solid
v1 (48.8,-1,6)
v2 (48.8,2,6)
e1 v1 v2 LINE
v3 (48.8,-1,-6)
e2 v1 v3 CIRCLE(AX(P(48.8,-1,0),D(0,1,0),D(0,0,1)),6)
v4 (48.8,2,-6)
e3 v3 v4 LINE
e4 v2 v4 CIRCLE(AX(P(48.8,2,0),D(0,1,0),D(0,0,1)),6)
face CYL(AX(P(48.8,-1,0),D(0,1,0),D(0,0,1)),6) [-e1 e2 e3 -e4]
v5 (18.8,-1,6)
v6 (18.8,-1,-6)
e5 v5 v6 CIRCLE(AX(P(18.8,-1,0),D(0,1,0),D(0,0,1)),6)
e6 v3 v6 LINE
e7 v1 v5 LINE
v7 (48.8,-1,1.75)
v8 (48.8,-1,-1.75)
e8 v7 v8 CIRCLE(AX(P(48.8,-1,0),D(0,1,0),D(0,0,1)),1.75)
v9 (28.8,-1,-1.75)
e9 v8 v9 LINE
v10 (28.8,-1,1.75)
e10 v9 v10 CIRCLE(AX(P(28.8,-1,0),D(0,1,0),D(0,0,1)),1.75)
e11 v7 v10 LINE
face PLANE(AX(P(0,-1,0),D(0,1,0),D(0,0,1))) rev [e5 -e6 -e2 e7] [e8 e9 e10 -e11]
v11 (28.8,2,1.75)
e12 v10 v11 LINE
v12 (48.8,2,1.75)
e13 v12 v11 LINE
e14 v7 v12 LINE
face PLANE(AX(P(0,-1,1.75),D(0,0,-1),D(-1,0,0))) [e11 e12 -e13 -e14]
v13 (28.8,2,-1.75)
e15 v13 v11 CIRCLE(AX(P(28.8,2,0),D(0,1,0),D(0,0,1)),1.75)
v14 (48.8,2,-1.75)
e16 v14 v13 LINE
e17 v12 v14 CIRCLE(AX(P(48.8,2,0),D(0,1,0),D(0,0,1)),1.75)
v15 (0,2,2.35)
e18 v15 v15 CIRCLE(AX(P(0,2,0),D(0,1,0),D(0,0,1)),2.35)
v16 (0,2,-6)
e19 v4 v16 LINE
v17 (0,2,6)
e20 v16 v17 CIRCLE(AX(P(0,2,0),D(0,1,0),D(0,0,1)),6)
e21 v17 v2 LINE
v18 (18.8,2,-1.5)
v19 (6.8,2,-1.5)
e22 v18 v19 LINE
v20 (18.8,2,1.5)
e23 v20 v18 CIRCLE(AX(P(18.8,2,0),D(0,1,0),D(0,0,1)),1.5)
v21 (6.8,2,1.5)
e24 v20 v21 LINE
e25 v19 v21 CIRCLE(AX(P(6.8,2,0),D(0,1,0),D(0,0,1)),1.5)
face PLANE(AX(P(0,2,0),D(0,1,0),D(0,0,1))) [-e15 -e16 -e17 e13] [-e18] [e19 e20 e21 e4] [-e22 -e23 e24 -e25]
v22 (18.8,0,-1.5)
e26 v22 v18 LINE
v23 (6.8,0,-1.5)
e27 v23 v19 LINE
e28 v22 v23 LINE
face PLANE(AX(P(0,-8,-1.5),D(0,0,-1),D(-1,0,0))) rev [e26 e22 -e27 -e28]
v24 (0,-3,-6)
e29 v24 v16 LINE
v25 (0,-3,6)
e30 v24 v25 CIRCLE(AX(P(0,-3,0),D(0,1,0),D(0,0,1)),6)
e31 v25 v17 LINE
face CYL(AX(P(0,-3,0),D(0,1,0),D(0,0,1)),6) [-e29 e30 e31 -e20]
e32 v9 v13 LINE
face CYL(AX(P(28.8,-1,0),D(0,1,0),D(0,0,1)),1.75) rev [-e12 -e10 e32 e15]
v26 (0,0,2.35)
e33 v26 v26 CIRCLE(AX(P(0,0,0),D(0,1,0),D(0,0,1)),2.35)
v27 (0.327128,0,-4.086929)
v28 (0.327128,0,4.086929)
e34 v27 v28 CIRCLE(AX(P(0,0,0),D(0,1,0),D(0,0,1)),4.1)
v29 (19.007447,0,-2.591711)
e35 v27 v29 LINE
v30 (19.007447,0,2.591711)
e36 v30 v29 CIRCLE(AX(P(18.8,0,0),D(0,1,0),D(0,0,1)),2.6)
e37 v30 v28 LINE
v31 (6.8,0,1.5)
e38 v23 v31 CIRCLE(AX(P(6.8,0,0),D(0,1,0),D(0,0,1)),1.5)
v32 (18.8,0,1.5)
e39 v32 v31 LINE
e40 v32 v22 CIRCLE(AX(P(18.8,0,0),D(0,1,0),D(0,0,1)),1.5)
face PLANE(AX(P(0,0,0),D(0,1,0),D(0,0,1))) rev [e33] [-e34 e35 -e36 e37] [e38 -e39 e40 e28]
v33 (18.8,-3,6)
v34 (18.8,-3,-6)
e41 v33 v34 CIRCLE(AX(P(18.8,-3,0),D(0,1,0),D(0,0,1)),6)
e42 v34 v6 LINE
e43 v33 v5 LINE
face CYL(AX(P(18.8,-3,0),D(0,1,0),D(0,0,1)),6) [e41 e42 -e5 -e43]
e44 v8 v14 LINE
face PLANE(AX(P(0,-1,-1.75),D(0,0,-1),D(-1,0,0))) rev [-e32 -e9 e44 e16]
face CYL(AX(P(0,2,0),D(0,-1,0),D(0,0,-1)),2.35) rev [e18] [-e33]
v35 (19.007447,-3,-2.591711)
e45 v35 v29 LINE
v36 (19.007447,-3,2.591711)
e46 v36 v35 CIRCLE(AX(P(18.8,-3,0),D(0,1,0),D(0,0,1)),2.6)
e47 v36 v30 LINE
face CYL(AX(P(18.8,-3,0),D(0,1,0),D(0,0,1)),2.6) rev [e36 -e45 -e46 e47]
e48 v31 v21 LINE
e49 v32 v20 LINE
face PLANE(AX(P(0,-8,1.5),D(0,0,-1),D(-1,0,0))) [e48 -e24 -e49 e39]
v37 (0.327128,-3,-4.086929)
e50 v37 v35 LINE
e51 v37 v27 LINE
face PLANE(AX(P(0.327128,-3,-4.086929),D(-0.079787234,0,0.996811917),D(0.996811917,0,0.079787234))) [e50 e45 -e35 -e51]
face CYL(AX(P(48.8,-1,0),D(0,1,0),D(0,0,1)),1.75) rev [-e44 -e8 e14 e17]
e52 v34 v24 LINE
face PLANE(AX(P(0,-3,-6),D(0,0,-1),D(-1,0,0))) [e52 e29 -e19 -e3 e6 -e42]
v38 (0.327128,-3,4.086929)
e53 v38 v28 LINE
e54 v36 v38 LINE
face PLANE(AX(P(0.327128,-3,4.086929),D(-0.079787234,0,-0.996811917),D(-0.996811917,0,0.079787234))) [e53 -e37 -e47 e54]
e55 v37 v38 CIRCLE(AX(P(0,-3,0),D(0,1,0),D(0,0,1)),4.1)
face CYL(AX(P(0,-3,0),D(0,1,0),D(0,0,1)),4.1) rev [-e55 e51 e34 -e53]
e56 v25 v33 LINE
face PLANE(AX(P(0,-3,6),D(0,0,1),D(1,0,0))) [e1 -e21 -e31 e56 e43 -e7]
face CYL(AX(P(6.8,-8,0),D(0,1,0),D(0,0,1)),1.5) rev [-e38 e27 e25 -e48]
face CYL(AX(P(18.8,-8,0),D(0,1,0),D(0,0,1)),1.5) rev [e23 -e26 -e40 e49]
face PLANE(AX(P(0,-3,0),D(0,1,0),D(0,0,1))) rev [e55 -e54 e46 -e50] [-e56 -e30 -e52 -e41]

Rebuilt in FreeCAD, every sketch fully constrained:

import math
import FreeCAD as App
import Part
import Sketcher

V = App.Vector

doc = App.newDocument("Part")
params = doc.addObject("Spreadsheet::Sheet", "Params")
for row, (alias, value) in enumerate([
    ("sketch1_radius", "6 mm"),
    ("sketch1_radius2", "4.1 mm"),
    ("sketch1_radius3", "2.6 mm"),
    ("sketch1_width", "18.8 mm"),
    ("pad1_length", "3 mm"),
    ("sketch2_radius", "6 mm"),
    ("sketch2_diameter", "4.7 mm"),
    ("sketch2_width", "18.8 mm"),
    ("pad2_length", "2 mm"),
    ("sketch3_radius", "6 mm"),
    ("sketch3_width", "30 mm"),
    ("sketch3_width2", "20 mm"),
    ("sketch3_radius2", "1.75 mm"),
    ("pad3_length", "3 mm"),
    ("sketch4_radius", "1.5 mm"),
    ("sketch4_width", "12 mm"),
    ("pocket1_length", "10 mm"),
], start=1):
    params.set(f"A{row}", alias)
    params.set(f"B{row}", "=" + value)
    params.setAlias(f"B{row}", alias)

body = doc.addObject("PartDesign::Body", "Body")

# Sketch on XZ plane
sketch1 = body.newObject("Sketcher::SketchObject", "Sketch")
sketch1.AttachmentSupport = (doc.getObject("XZ_Plane"), [""])
sketch1.MapMode = "FlatFace"
sketch1.addGeometry(Part.ArcOfCircle(Part.Circle(V(18.8, 0, 0), V(0, 0, 1), 6), math.radians(-90), math.radians(90)), False)
sketch1.addGeometry(Part.LineSegment(V(18.8, -6, 0), V(0, -6, 0)), False)
sketch1.addGeometry(Part.ArcOfCircle(Part.Circle(V(0, 0, 0), V(0, 0, 1), 6), math.radians(90), math.radians(270)), False)
sketch1.addGeometry(Part.LineSegment(V(0, 6, 0), V(18.8, 6, 0)), False)
sketch1.addGeometry(Part.LineSegment(V(19, 2.6, 0), V(0.3, 4.1, 0)), False)
sketch1.addGeometry(Part.ArcOfCircle(Part.Circle(V(0, 0, 0), V(0, 0, 1), 4.1), math.radians(85), math.radians(275)), False)
sketch1.addGeometry(Part.LineSegment(V(0.3, -4.1, 0), V(19, -2.6, 0)), False)
sketch1.addGeometry(Part.ArcOfCircle(Part.Circle(V(18.8, 0, 0), V(0, 0, 1), 2.6), math.radians(-85), math.radians(85)), False)
sketch1.addConstraint(Sketcher.Constraint("Tangent", 0, 1, 1, 1))
sketch1.addConstraint(Sketcher.Constraint("Tangent", 1, 2, 2, 2))
sketch1.addConstraint(Sketcher.Constraint("Tangent", 2, 1, 3, 1))
sketch1.addConstraint(Sketcher.Constraint("Tangent", 3, 2, 0, 2))
sketch1.addConstraint(Sketcher.Constraint("Tangent", 4, 2, 5, 1))
sketch1.addConstraint(Sketcher.Constraint("Tangent", 5, 2, 6, 1))
sketch1.addConstraint(Sketcher.Constraint("Tangent", 6, 2, 7, 1))
sketch1.addConstraint(Sketcher.Constraint("Tangent", 7, 2, 4, 1))
sketch1.addConstraint(Sketcher.Constraint("Horizontal", 1))
sketch1.addConstraint(Sketcher.Constraint("Horizontal", 3))
sketch1.addConstraint(Sketcher.Constraint("Coincident", 2, 3, -1, 1))
sketch1.addConstraint(Sketcher.Constraint("Coincident", 5, 3, -1, 1))
sketch1.addConstraint(Sketcher.Constraint("Coincident", 7, 3, 0, 3))
sketch1.addConstraint(Sketcher.Constraint("Radius", 0, 6.0))
sketch1.addConstraint(Sketcher.Constraint("Radius", 5, 4.1))
sketch1.addConstraint(Sketcher.Constraint("Radius", 7, 2.6))
sketch1.addConstraint(Sketcher.Constraint("DistanceX", 1, 2, 1, 1, 18.8))
sketch1.setExpression("Constraints[13]", "Params.sketch1_radius")
sketch1.setExpression("Constraints[14]", "Params.sketch1_radius2")
sketch1.setExpression("Constraints[15]", "Params.sketch1_radius3")
sketch1.setExpression("Constraints[16]", "Params.sketch1_width")
pad1 = body.newObject("PartDesign::Pad", "Pad")
pad1.Profile = sketch1
pad1.setExpression("Length", "Params.pad1_length")

# Sketch on XZ plane
sketch2 = body.newObject("Sketcher::SketchObject", "Sketch001")
sketch2.AttachmentSupport = (doc.getObject("XZ_Plane"), [""])
sketch2.MapMode = "FlatFace"
sketch2.AttachmentOffset = App.Placement(V(0, 0, -2), App.Rotation())
sketch2.addGeometry(Part.ArcOfCircle(Part.Circle(V(18.8, 0, 0), V(0, 0, 1), 6), math.radians(-90), math.radians(90)), False)
sketch2.addGeometry(Part.LineSegment(V(18.8, -6, 0), V(0, -6, 0)), False)
sketch2.addGeometry(Part.ArcOfCircle(Part.Circle(V(0, 0, 0), V(0, 0, 1), 6), math.radians(90), math.radians(270)), False)
sketch2.addGeometry(Part.LineSegment(V(0, 6, 0), V(18.8, 6, 0)), False)
sketch2.addGeometry(Part.Circle(V(0, 0, 0), V(0, 0, 1), 2.4), False)
sketch2.addConstraint(Sketcher.Constraint("Tangent", 0, 1, 1, 1))
sketch2.addConstraint(Sketcher.Constraint("Tangent", 1, 2, 2, 2))
sketch2.addConstraint(Sketcher.Constraint("Tangent", 2, 1, 3, 1))
sketch2.addConstraint(Sketcher.Constraint("Tangent", 3, 2, 0, 2))
sketch2.addConstraint(Sketcher.Constraint("Horizontal", 1))
sketch2.addConstraint(Sketcher.Constraint("Horizontal", 3))
sketch2.addConstraint(Sketcher.Constraint("Coincident", 2, 3, -1, 1))
sketch2.addConstraint(Sketcher.Constraint("Coincident", 4, 3, -1, 1))
sketch2.addConstraint(Sketcher.Constraint("Radius", 0, 6.0))
sketch2.addConstraint(Sketcher.Constraint("Diameter", 4, 4.7))
sketch2.addConstraint(Sketcher.Constraint("DistanceX", 1, 2, 1, 1, 18.8))
sketch2.setExpression("Constraints[8]", "Params.sketch2_radius")
sketch2.setExpression("Constraints[9]", "Params.sketch2_diameter")
sketch2.setExpression("Constraints[10]", "Params.sketch2_width")
pad2 = body.newObject("PartDesign::Pad", "Pad001")
pad2.Profile = sketch2
pad2.setExpression("Length", "Params.pad2_length")

# Sketch on XZ plane
sketch3 = body.newObject("Sketcher::SketchObject", "Sketch002")
sketch3.AttachmentSupport = (doc.getObject("XZ_Plane"), [""])
sketch3.MapMode = "FlatFace"
sketch3.AttachmentOffset = App.Placement(V(0, 0, -2), App.Rotation())
sketch3.addGeometry(Part.ArcOfCircle(Part.Circle(V(48.8, 0, 0), V(0, 0, 1), 6), math.radians(-90), math.radians(90)), False)
sketch3.addGeometry(Part.LineSegment(V(48.8, -6, 0), V(18.8, -6, 0)), False)
sketch3.addGeometry(Part.ArcOfCircle(Part.Circle(V(18.8, 0, 0), V(0, 0, 1), 6), math.radians(-90), math.radians(90)), False)
sketch3.addGeometry(Part.LineSegment(V(18.8, 6, 0), V(48.8, 6, 0)), False)
sketch3.addGeometry(Part.LineSegment(V(28.8, -1.8, 0), V(48.8, -1.8, 0)), False)
sketch3.addGeometry(Part.ArcOfCircle(Part.Circle(V(48.8, 0, 0), V(0, 0, 1), 1.8), math.radians(-90), math.radians(90)), False)
sketch3.addGeometry(Part.LineSegment(V(48.8, 1.8, 0), V(28.8, 1.8, 0)), False)
sketch3.addGeometry(Part.ArcOfCircle(Part.Circle(V(28.8, 0, 0), V(0, 0, 1), 1.8), math.radians(90), math.radians(270)), False)
sketch3.addConstraint(Sketcher.Constraint("Tangent", 0, 1, 1, 1))
sketch3.addConstraint(Sketcher.Constraint("Tangent", 1, 2, 2, 1))
sketch3.addConstraint(Sketcher.Constraint("Tangent", 2, 2, 3, 1))
sketch3.addConstraint(Sketcher.Constraint("Tangent", 3, 2, 0, 2))
sketch3.addConstraint(Sketcher.Constraint("Tangent", 4, 2, 5, 1))
sketch3.addConstraint(Sketcher.Constraint("Tangent", 5, 2, 6, 1))
sketch3.addConstraint(Sketcher.Constraint("Tangent", 6, 2, 7, 1))
sketch3.addConstraint(Sketcher.Constraint("Tangent", 7, 2, 4, 1))
sketch3.addConstraint(Sketcher.Constraint("Horizontal", 1))
sketch3.addConstraint(Sketcher.Constraint("Horizontal", 3))
sketch3.addConstraint(Sketcher.Constraint("Horizontal", 4))
sketch3.addConstraint(Sketcher.Constraint("Horizontal", 6))
sketch3.addConstraint(Sketcher.Constraint("Coincident", 5, 3, 0, 3))
sketch3.addConstraint(Sketcher.Constraint("PointOnObject", 0, 3, -1))
sketch3.addConstraint(Sketcher.Constraint("Radius", 0, 6.0))
sketch3.addConstraint(Sketcher.Constraint("DistanceX", 1, 2, 1, 1, 30.0))
sketch3.addConstraint(Sketcher.Constraint("DistanceX", 4, 1, 4, 2, 20.0))
sketch3.addConstraint(Sketcher.Constraint("Radius", 5, 1.75))
sketch3.addConstraint(Sketcher.Constraint("DistanceX", -1, 1, 0, 3, 48.8))
sketch3.setExpression("Constraints[14]", "Params.sketch3_radius")
sketch3.setExpression("Constraints[15]", "Params.sketch3_width")
sketch3.setExpression("Constraints[16]", "Params.sketch3_width2")
sketch3.setExpression("Constraints[17]", "Params.sketch3_radius2")
pad3 = body.newObject("PartDesign::Pad", "Pad002")
pad3.Profile = sketch3
pad3.setExpression("Length", "Params.pad3_length")

# Sketch on XZ plane
sketch4 = body.newObject("Sketcher::SketchObject", "Sketch003")
sketch4.AttachmentSupport = (doc.getObject("XZ_Plane"), [""])
sketch4.MapMode = "FlatFace"
sketch4.AttachmentOffset = App.Placement(V(0, 0, -2), App.Rotation())
sketch4.addGeometry(Part.ArcOfCircle(Part.Circle(V(18.8, 0, 0), V(0, 0, 1), 1.5), math.radians(-90), math.radians(0)), False)
sketch4.addGeometry(Part.LineSegment(V(18.8, -1.5, 0), V(6.8, -1.5, 0)), False)
sketch4.addGeometry(Part.ArcOfCircle(Part.Circle(V(6.8, 0, 0), V(0, 0, 1), 1.5), math.radians(180), math.radians(270)), False)
sketch4.addGeometry(Part.ArcOfCircle(Part.Circle(V(6.8, 0, 0), V(0, 0, 1), 1.5), math.radians(90), math.radians(180)), False)
sketch4.addGeometry(Part.LineSegment(V(6.8, 1.5, 0), V(18.8, 1.5, 0)), False)
sketch4.addGeometry(Part.ArcOfCircle(Part.Circle(V(18.8, 0, 0), V(0, 0, 1), 1.5), math.radians(0), math.radians(90)), False)
sketch4.addConstraint(Sketcher.Constraint("Tangent", 0, 1, 1, 1))
sketch4.addConstraint(Sketcher.Constraint("Tangent", 1, 2, 2, 2))
sketch4.addConstraint(Sketcher.Constraint("Tangent", 2, 1, 3, 2))
sketch4.addConstraint(Sketcher.Constraint("Tangent", 3, 1, 4, 1))
sketch4.addConstraint(Sketcher.Constraint("Tangent", 4, 2, 5, 2))
sketch4.addConstraint(Sketcher.Constraint("Tangent", 5, 1, 0, 2))
sketch4.addConstraint(Sketcher.Constraint("Horizontal", 1))
sketch4.addConstraint(Sketcher.Constraint("Horizontal", 4))
sketch4.addConstraint(Sketcher.Constraint("Equal", 0, 2))
sketch4.addConstraint(Sketcher.Constraint("Equal", 2, 3))
sketch4.addConstraint(Sketcher.Constraint("PointOnObject", 0, 3, -1))
sketch4.addConstraint(Sketcher.Constraint("PointOnObject", 2, 1, -1))
sketch4.addConstraint(Sketcher.Constraint("PointOnObject", 5, 1, -1))
sketch4.addConstraint(Sketcher.Constraint("Radius", 0, 1.5))
sketch4.addConstraint(Sketcher.Constraint("DistanceX", 1, 2, 1, 1, 12.0))
sketch4.addConstraint(Sketcher.Constraint("DistanceX", -1, 1, 0, 3, 18.8))
sketch4.setExpression("Constraints[13]", "Params.sketch4_radius")
sketch4.setExpression("Constraints[14]", "Params.sketch4_width")
pocket1 = body.newObject("PartDesign::Pocket", "Pocket")
pocket1.Profile = sketch4
pocket1.setExpression("Length", "Params.pocket1_length")
pocket1.Reversed = True

doc.recompute()
